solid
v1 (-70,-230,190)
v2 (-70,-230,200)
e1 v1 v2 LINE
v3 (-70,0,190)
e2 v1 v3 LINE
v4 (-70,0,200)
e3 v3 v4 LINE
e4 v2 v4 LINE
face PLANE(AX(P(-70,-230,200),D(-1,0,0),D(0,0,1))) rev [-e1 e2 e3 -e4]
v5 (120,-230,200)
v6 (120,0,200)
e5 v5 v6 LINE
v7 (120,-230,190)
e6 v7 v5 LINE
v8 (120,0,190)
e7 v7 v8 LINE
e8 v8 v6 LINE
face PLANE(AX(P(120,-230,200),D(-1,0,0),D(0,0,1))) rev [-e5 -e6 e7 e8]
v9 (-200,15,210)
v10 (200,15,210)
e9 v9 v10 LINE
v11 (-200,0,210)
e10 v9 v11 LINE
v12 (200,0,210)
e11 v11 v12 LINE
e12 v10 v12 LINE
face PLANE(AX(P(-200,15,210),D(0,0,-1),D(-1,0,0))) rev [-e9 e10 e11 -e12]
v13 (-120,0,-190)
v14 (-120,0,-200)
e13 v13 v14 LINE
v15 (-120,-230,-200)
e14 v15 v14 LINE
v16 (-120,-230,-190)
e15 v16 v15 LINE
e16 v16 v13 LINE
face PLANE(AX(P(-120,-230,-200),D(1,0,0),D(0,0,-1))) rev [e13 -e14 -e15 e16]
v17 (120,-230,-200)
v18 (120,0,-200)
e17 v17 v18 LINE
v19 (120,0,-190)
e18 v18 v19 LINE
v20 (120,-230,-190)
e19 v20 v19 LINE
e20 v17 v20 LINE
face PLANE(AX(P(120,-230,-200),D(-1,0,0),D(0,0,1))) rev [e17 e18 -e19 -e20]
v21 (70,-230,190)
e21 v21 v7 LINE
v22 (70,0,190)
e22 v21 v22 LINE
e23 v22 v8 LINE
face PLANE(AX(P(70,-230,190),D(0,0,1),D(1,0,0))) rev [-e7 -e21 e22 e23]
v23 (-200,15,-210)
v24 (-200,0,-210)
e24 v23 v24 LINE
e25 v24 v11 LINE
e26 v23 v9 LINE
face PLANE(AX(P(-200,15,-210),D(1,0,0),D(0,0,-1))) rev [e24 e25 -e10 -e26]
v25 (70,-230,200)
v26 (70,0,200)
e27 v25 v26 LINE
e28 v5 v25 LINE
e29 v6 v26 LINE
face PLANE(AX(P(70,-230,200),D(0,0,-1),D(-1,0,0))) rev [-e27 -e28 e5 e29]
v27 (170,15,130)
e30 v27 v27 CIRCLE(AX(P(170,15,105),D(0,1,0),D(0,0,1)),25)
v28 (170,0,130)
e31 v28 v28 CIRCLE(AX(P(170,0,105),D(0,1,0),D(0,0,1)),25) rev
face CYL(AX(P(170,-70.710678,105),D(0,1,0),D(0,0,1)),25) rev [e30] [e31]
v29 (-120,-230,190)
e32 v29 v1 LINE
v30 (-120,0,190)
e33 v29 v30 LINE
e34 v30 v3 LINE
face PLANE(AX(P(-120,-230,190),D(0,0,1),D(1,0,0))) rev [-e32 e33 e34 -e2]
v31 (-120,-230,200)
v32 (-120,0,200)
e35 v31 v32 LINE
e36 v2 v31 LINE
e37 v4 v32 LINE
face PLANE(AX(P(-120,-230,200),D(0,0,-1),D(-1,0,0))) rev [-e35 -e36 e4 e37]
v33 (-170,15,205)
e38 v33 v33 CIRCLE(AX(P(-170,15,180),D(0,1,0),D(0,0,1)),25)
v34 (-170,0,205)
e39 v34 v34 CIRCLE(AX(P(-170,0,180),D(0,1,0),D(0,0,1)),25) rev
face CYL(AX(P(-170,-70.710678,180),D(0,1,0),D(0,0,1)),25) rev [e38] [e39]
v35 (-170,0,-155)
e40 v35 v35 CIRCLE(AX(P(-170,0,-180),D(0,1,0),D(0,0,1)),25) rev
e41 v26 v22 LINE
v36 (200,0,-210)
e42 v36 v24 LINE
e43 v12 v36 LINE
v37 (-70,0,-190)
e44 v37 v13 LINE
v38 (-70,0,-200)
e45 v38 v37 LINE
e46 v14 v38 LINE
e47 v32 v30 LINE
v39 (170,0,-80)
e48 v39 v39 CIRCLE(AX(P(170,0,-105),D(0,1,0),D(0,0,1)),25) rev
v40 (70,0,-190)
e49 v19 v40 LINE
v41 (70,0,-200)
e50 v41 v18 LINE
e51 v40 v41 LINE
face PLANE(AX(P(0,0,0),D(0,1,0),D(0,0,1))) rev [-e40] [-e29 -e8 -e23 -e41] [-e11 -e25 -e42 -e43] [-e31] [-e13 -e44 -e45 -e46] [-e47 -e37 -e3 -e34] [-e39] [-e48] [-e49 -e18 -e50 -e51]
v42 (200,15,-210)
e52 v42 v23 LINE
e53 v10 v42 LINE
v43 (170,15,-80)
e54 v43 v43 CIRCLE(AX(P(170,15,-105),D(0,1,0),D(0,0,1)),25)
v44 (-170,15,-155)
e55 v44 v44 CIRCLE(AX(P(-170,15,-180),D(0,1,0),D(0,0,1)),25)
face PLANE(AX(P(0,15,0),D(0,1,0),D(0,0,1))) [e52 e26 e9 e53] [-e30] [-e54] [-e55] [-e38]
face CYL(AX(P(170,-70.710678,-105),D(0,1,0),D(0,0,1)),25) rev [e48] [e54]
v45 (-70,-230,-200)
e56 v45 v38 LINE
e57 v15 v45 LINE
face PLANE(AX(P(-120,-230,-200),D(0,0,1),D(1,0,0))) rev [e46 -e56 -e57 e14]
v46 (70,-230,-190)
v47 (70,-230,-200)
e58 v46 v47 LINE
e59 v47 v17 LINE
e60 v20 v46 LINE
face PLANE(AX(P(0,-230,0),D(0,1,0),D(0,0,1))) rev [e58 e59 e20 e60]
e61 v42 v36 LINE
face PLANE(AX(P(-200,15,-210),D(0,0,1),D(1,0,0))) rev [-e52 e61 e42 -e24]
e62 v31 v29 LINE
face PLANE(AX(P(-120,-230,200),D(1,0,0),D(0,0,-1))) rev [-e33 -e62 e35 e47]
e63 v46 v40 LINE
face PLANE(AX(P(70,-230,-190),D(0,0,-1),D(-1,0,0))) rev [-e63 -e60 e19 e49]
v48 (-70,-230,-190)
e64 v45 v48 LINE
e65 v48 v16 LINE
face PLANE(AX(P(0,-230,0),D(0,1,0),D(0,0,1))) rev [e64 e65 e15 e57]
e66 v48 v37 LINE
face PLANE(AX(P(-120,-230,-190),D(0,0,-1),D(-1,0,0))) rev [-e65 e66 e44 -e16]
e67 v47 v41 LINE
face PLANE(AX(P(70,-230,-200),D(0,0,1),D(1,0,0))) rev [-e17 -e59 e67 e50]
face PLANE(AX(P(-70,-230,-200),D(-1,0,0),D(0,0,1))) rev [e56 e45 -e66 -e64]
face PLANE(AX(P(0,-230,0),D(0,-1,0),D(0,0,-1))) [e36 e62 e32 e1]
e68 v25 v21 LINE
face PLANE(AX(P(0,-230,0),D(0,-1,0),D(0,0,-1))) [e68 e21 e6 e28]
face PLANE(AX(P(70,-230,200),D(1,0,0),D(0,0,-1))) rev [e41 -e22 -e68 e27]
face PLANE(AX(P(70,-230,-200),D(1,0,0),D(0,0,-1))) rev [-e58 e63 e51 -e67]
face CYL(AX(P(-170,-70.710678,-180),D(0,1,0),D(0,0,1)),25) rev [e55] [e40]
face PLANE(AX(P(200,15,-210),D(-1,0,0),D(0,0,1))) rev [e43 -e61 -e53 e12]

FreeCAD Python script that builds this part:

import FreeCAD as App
import Part
import Sketcher

V = App.Vector


def add_polygon(sketch, points):
    """Adds a closed chain of lines whose ends are joined by coincident constraints."""
    first, n = sketch.GeometryCount, len(points)
    for a, b in zip(points, points[1:] + points[:1]):
        sketch.addGeometry(Part.LineSegment(App.Vector(*a, 0), App.Vector(*b, 0)), False)
    for i in range(n):
        sketch.addConstraint(Sketcher.Constraint("Coincident", first + i, 2, first + (i + 1) % n, 1))

doc = App.newDocument("Part")
body = doc.addObject("PartDesign::Body", "Body")

# Sketch on XZ plane
sketch1 = body.newObject("Sketcher::SketchObject", "Sketch")
sketch1.AttachmentSupport = (doc.getObject("XZ_Plane"), [""])
sketch1.MapMode = "FlatFace"
add_polygon(sketch1, [(-200, -210), (-200, 210), (200, 210), (200, -210)])  # lines 0-3
sketch1.addConstraint([
    Sketcher.Constraint("Vertical", 0),
    Sketcher.Constraint("Horizontal", 1),
    Sketcher.Constraint("Vertical", 2),
    Sketcher.Constraint("Horizontal", 3),
    Sketcher.Constraint("Symmetric", 0, 2, 2, 2, -1, 1),
    Sketcher.Constraint("DistanceX", 1, 1, 1, 2, 400.0),
    Sketcher.Constraint("DistanceY", 0, 1, 0, 2, 420.0),
])
pad1 = body.newObject("PartDesign::Pad", "Pad")
pad1.Profile = sketch1
pad1.Length = 15
pad1.Reversed = True

# Sketch on XZ plane
sketch2 = body.newObject("Sketcher::SketchObject", "Sketch001")
sketch2.AttachmentSupport = (doc.getObject("XZ_Plane"), [""])
sketch2.MapMode = "FlatFace"
sketch2.AttachmentOffset = App.Placement(V(0, 0, -15), App.Rotation())
sketch2.addGeometry([
    Part.Circle(V(-170, -180, 0), V(0, 0, 1), 25),
    Part.Circle(V(-170, 180, 0), V(0, 0, 1), 25),
    Part.Circle(V(170, 105, 0), V(0, 0, 1), 25),
    Part.Circle(V(170, -105, 0), V(0, 0, 1), 25),
], False)
sketch2.addConstraint([
    Sketcher.Constraint("Equal", 0, 1),
    Sketcher.Constraint("Equal", 1, 2),
    Sketcher.Constraint("Equal", 2, 3),
    Sketcher.Constraint("Symmetric", 0, 3, 1, 3, -1),
    Sketcher.Constraint("Symmetric", 2, 3, 3, 3, -1),
    Sketcher.Constraint("Diameter", 0, 50.0),
    Sketcher.Constraint("DistanceX", 0, 3, -1, 1, 170.0),
    Sketcher.Constraint("DistanceY", 0, 3, -1, 1, 180.0),
    Sketcher.Constraint("DistanceX", -1, 1, 2, 3, 170.0),
    Sketcher.Constraint("DistanceY", -1, 1, 2, 3, 105.0),
])
pocket1 = body.newObject("PartDesign::Pocket", "Pocket")
pocket1.Profile = sketch2
pocket1.Length = 15
pocket1.Reversed = True

# Sketch on XZ plane
sketch3 = body.newObject("Sketcher::SketchObject", "Sketch002")
sketch3.AttachmentSupport = (doc.getObject("XZ_Plane"), [""])
sketch3.MapMode = "FlatFace"
add_polygon(sketch3, [(-120, 200), (-120, 190), (-70, 190), (-70, 200)])  # lines 0-3
add_polygon(sketch3, [(70, 200), (70, 190), (120, 190), (120, 200)])  # lines 4-7
add_polygon(sketch3, [(-120, -190), (-120, -200), (-70, -200), (-70, -190)])  # lines 8-11
add_polygon(sketch3, [(70, -190), (70, -200), (120, -200), (120, -190)])  # lines 12-15
sketch3.addConstraint([
    Sketcher.Constraint("Vertical", 0),
    Sketcher.Constraint("Horizontal", 1),
    Sketcher.Constraint("Vertical", 2),
    Sketcher.Constraint("Horizontal", 3),
    Sketcher.Constraint("Vertical", 4),
    Sketcher.Constraint("Horizontal", 5),
    Sketcher.Constraint("Vertical", 6),
    Sketcher.Constraint("Horizontal", 7),
    Sketcher.Constraint("Vertical", 8),
    Sketcher.Constraint("Horizontal", 9),
    Sketcher.Constraint("Vertical", 10),
    Sketcher.Constraint("Horizontal", 11),
    Sketcher.Constraint("Vertical", 12),
    Sketcher.Constraint("Horizontal", 13),
    Sketcher.Constraint("Vertical", 14),
    Sketcher.Constraint("Horizontal", 15),
    Sketcher.Constraint("Symmetric", 6, 2, 8, 2, -1, 1),
    Sketcher.Constraint("Symmetric", 4, 2, 10, 2, -1, 1),
    Sketcher.Constraint("Symmetric", 2, 2, 12, 2, -1, 1),
    Sketcher.Constraint("Symmetric", 0, 2, 14, 2, -1, 1),
    Sketcher.Constraint("Symmetric", 1, 2, 4, 2, -2),
    Sketcher.Constraint("Symmetric", 3, 2, 6, 2, -2),
    Sketcher.Constraint("DistanceX", 1, 1, 1, 2, 50.0),
    Sketcher.Constraint("DistanceY", 0, 2, 0, 1, 10.0),
    Sketcher.Constraint("DistanceX", 0, 2, -1, 1, 120.0),
    Sketcher.Constraint("DistanceY", -1, 1, 0, 2, 190.0),
])
pad2 = body.newObject("PartDesign::Pad", "Pad001")
pad2.Profile = sketch3
pad2.Length = 230

doc.recompute()
